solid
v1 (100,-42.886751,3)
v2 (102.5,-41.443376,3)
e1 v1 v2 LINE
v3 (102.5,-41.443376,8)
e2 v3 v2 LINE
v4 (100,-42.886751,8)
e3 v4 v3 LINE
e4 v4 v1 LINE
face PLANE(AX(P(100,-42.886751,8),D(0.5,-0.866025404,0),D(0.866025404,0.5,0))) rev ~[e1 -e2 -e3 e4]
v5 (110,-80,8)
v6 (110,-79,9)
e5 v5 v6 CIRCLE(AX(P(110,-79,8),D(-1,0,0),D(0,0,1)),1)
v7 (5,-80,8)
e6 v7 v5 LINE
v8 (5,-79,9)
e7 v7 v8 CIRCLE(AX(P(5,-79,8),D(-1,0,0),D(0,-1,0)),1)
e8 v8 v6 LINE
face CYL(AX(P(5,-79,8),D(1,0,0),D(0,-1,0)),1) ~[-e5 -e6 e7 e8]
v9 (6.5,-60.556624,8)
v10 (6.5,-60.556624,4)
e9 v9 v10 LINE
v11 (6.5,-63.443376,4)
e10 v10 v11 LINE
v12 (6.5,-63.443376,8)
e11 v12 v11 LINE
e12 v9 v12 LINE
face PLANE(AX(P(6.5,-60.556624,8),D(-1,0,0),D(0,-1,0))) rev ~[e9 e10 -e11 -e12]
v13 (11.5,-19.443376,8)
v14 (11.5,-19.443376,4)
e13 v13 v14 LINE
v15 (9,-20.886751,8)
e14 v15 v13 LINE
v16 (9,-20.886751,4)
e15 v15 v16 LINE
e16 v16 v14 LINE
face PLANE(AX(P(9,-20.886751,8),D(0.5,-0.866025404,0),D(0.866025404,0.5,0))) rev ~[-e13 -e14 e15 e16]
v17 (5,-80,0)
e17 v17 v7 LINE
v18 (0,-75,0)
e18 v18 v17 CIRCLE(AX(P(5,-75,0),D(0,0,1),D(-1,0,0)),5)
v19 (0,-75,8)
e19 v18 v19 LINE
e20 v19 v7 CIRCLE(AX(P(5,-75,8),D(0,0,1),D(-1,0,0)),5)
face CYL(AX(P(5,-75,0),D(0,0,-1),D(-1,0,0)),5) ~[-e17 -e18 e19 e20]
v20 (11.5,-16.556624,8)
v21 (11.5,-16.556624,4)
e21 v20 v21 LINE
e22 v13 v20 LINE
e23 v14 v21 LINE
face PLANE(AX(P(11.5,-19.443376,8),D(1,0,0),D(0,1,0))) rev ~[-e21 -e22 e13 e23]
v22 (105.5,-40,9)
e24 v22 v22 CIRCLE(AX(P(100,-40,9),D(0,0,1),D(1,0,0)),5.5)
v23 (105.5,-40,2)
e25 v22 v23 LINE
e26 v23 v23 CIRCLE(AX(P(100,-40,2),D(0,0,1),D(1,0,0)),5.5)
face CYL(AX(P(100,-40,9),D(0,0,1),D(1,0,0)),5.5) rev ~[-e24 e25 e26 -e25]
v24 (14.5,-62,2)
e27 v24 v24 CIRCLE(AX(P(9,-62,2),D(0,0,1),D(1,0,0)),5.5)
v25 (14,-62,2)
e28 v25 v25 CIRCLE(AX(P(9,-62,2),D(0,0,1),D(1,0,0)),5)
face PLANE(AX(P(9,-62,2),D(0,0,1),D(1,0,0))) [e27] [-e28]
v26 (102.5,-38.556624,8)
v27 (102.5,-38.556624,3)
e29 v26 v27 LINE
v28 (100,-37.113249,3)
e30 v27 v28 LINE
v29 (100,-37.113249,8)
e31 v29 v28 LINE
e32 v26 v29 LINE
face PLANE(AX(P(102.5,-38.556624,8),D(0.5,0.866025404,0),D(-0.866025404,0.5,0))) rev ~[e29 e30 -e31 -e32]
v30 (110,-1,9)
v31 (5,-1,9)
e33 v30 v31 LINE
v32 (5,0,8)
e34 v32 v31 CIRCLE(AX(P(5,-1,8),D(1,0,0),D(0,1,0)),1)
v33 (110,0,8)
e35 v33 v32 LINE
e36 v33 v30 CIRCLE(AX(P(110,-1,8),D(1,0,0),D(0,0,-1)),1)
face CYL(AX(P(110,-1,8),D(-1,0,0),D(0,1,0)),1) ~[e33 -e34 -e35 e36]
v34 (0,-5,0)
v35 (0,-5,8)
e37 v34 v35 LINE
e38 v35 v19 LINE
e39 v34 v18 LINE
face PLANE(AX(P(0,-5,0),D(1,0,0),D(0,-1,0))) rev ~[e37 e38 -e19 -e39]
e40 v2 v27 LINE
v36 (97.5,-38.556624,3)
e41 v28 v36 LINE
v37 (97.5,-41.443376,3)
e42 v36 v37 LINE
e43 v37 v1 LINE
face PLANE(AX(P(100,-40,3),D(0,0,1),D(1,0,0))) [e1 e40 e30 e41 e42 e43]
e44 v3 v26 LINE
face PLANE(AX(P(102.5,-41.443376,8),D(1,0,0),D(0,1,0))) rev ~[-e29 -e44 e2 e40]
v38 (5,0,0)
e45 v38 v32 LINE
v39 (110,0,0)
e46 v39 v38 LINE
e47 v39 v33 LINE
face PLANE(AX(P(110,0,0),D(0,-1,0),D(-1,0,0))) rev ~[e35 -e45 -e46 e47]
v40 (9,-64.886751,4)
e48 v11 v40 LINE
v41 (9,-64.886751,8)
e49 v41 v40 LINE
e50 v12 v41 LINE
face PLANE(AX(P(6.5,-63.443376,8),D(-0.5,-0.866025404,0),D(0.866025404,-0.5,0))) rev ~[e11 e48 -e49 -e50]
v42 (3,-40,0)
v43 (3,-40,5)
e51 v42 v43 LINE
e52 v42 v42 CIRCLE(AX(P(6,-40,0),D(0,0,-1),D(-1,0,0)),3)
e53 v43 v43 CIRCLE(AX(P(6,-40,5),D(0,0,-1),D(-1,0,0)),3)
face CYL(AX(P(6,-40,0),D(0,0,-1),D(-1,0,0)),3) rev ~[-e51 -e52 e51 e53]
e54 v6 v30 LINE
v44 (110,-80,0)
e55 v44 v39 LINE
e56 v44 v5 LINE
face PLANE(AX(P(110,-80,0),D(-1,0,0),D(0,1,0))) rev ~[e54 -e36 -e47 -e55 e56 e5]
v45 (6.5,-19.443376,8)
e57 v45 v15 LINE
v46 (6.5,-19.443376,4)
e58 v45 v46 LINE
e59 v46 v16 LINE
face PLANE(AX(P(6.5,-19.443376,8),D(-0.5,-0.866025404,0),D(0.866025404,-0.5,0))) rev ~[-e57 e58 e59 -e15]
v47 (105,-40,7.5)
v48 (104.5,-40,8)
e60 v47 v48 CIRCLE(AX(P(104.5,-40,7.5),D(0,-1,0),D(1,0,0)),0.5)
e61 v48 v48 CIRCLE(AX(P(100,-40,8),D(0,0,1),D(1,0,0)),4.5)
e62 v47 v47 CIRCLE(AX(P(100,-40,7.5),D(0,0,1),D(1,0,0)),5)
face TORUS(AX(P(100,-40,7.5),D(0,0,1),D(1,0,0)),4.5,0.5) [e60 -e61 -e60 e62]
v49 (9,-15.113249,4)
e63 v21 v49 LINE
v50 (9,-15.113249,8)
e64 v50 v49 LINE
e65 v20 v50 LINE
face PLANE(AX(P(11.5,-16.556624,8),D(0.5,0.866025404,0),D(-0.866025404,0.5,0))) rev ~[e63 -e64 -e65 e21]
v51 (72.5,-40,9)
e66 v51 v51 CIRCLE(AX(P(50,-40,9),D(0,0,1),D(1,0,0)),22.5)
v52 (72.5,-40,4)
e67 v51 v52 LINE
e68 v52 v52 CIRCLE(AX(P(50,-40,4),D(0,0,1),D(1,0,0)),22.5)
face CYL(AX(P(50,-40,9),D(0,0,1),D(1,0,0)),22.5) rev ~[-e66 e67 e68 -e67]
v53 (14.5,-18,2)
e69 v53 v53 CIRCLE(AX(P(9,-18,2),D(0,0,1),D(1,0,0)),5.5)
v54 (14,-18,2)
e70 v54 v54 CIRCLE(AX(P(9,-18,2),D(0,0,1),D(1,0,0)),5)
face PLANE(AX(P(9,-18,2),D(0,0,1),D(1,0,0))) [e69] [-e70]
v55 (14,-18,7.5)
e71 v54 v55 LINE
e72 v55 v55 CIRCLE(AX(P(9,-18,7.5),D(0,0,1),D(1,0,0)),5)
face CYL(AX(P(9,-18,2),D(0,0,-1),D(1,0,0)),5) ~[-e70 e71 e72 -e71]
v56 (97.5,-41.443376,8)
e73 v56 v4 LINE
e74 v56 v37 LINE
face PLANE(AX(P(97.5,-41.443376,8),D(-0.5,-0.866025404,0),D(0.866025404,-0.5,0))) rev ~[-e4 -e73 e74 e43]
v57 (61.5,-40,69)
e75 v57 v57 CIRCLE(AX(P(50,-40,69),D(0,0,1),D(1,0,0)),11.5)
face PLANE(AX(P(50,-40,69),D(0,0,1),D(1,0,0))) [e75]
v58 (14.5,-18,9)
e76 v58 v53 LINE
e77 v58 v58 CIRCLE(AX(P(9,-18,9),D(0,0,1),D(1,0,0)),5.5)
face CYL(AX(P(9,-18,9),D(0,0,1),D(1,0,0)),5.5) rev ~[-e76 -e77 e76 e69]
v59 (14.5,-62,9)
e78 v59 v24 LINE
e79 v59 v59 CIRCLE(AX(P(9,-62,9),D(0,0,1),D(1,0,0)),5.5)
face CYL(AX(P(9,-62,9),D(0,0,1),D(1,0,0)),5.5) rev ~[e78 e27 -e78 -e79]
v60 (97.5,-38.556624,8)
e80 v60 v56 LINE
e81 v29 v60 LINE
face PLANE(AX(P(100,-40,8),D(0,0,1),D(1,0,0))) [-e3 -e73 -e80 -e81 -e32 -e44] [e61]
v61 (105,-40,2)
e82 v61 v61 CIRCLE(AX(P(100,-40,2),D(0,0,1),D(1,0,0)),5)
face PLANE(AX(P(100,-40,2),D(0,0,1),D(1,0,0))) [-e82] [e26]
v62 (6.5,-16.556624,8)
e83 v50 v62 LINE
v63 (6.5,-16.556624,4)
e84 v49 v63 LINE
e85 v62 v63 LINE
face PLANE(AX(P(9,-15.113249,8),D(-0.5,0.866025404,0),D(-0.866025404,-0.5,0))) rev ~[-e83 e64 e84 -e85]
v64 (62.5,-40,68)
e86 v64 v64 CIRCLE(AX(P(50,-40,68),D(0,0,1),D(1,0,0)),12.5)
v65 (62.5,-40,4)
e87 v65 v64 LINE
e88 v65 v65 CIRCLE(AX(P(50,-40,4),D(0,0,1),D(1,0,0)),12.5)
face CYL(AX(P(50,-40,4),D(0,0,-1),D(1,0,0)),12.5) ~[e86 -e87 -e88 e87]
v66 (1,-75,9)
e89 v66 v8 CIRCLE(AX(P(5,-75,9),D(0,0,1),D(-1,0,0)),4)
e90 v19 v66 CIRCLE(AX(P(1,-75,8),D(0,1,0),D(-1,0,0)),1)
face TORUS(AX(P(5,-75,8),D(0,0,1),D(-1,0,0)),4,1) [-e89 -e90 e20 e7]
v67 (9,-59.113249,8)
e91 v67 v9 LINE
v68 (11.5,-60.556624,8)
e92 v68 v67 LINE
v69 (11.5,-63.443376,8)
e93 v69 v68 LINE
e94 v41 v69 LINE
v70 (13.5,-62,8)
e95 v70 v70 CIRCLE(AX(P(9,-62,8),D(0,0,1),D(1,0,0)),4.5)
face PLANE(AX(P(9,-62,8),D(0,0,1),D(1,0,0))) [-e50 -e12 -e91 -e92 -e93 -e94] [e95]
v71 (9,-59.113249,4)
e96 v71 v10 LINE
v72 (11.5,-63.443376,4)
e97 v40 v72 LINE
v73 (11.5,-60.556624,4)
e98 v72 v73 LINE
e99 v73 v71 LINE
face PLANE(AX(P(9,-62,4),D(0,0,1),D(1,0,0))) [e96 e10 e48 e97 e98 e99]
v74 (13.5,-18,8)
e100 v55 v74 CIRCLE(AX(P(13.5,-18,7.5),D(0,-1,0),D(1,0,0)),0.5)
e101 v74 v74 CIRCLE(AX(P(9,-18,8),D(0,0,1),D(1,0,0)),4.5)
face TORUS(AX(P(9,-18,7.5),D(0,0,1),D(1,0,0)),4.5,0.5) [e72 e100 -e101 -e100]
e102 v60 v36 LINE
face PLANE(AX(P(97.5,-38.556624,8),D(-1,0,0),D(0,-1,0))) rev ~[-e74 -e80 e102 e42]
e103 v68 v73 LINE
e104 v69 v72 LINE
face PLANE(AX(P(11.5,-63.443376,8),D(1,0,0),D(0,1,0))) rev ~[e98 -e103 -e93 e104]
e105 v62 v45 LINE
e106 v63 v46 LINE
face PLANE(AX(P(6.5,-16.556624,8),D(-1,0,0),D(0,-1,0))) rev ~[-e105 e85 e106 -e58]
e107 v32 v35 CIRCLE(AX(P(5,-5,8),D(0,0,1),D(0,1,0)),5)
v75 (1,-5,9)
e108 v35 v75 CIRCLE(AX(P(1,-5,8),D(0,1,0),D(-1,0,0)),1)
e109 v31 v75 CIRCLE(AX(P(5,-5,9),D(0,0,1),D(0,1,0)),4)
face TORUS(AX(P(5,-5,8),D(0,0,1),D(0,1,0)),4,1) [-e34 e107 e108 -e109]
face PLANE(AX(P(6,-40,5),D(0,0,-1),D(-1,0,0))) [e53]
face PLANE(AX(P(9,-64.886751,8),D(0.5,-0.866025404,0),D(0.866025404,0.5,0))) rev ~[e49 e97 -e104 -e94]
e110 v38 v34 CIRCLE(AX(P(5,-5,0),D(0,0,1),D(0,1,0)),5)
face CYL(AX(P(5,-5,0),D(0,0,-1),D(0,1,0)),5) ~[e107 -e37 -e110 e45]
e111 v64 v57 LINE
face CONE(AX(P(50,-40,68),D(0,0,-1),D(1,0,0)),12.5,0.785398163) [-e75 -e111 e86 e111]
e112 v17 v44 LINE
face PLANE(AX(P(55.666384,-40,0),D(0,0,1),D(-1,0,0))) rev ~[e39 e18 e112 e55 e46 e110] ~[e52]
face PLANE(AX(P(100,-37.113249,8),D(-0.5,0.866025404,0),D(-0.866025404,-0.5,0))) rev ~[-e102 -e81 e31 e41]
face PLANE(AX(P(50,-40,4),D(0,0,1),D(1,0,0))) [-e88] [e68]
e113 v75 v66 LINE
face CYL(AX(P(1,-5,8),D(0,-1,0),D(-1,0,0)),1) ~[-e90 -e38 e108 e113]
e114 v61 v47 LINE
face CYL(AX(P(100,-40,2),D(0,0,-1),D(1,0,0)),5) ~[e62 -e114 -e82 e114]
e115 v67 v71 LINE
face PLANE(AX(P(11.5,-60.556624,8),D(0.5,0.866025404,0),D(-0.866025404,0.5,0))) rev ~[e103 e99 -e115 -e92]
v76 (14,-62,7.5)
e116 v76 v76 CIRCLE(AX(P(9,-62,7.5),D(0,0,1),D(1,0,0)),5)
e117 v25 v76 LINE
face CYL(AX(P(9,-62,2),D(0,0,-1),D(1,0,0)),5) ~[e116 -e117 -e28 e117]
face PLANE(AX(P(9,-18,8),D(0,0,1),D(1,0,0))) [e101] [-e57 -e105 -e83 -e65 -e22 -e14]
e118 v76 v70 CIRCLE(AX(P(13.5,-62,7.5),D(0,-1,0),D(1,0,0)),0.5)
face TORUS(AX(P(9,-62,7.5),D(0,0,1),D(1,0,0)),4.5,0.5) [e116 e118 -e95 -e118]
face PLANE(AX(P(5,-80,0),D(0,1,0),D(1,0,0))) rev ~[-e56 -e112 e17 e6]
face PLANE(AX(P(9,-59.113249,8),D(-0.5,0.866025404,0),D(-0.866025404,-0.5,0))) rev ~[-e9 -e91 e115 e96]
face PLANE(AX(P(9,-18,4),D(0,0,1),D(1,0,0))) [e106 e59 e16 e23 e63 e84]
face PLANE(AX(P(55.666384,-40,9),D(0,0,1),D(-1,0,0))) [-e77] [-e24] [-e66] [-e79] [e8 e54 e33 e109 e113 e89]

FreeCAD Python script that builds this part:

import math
import FreeCAD as App
import Part
import Sketcher

V = App.Vector
Q = App.Units.Quantity


def edges_at(feature, points):
    """Names of the edges that pass closest to the given points."""
    edges = feature.Shape.Edges
    near = lambda p: min(range(len(edges)), key=lambda i: edges[i].distToShape(Part.Vertex(*p))[0])
    return sorted({f"Edge{near(p) + 1}" for p in points})


def add_polygon(sketch, points):
    """Adds a closed chain of lines whose ends are joined by coincident constraints."""
    first, n = sketch.GeometryCount, len(points)
    for a, b in zip(points, points[1:] + points[:1]):
        sketch.addGeometry(Part.LineSegment(App.Vector(*a, 0), App.Vector(*b, 0)), False)
    for i in range(n):
        sketch.addConstraint(Sketcher.Constraint("Coincident", first + i, 2, first + (i + 1) % n, 1))

doc = App.newDocument("Part")
body = doc.addObject("PartDesign::Body", "Body")

sketch1 = body.newObject("Sketcher::SketchObject", "Sketch")
sketch1.AttachmentSupport = (doc.getObject("XY_Plane"), [""])
sketch1.MapMode = "FlatFace"
sketch1.addGeometry([
    Part.LineSegment(V(0, -5, 0), V(0, -75, 0)),
    Part.ArcOfCircle(Part.Circle(V(5, -75, 0), V(0, 0, 1), 5), math.radians(180), math.radians(270)),
    Part.LineSegment(V(5, -80, 0), V(110, -80, 0)),
    Part.LineSegment(V(110, -80, 0), V(110, 0, 0)),
    Part.LineSegment(V(110, 0, 0), V(5, 0, 0)),
    Part.ArcOfCircle(Part.Circle(V(5, -5, 0), V(0, 0, 1), 5), math.radians(90), math.radians(180)),
], False)
sketch1.addConstraint([
    Sketcher.Constraint("Tangent", 0, 2, 1, 1),
    Sketcher.Constraint("Tangent", 1, 2, 2, 1),
    Sketcher.Constraint("Coincident", 2, 2, 3, 1),
    Sketcher.Constraint("Coincident", 3, 2, 4, 1),
    Sketcher.Constraint("Tangent", 4, 2, 5, 1),
    Sketcher.Constraint("Tangent", 5, 2, 0, 1),
    Sketcher.Constraint("Vertical", 0),
    Sketcher.Constraint("Horizontal", 2),
    Sketcher.Constraint("Vertical", 3),
    Sketcher.Constraint("Horizontal", 4),
    Sketcher.Constraint("Equal", 1, 5),
    Sketcher.Constraint("PointOnObject", 0, 2, -2),
    Sketcher.Constraint("PointOnObject", 3, 2, -1),
    Sketcher.Constraint("Radius", 1, 5.0),
    Sketcher.Constraint("DistanceX", 2, 1, 2, 2, 105.0),
    Sketcher.Constraint("DistanceY", 0, 2, 0, 1, 70.0),
])
pad1 = body.newObject("PartDesign::Pad", "Pad")
pad1.Profile = sketch1
pad1.Length = 9
doc.recompute()

fillet = body.newObject("PartDesign::Fillet", "Fillet")
fillet.Base = (pad1, edges_at(pad1, [
    (1.464, -78.536, 9),
    (57.5, -80, 9),
    (57.5, 0, 9),
    (1.464, -1.464, 9),
    (0, -40, 9),
]))
fillet.Radius = 1

sketch2 = body.newObject("Sketcher::SketchObject", "Sketch001")
sketch2.AttachmentSupport = (doc.getObject("XY_Plane"), [""])
sketch2.MapMode = "FlatFace"
sketch2.AttachmentOffset = App.Placement(V(0, 0, 9), App.Rotation())
sketch2.addGeometry(Part.Circle(V(9, -18, 0), V(0, 0, 1), 6), False)
sketch2.addConstraint([
    Sketcher.Constraint("Diameter", 0, 11.0),
    Sketcher.Constraint("DistanceX", -1, 1, 0, 3, 9.0),
    Sketcher.Constraint("DistanceY", 0, 3, -1, 1, 18.0),
])
pocket1 = body.newObject("PartDesign::Pocket", "Pocket")
pocket1.Profile = sketch2
pocket1.Length = 7

sketch3 = body.newObject("Sketcher::SketchObject", "Sketch002")
sketch3.AttachmentSupport = (doc.getObject("XY_Plane"), [""])
sketch3.MapMode = "FlatFace"
sketch3.AttachmentOffset = App.Placement(V(0, 0, 2), App.Rotation())
sketch3.addGeometry(Part.Circle(V(9, -18, 0), V(0, 0, 1), 5), False)
sketch3.addConstraint([
    Sketcher.Constraint("Diameter", 0, 10.0),
    Sketcher.Constraint("DistanceX", -1, 1, 0, 3, 9.0),
    Sketcher.Constraint("DistanceY", 0, 3, -1, 1, 18.0),
])
pad2 = body.newObject("PartDesign::Pad", "Pad001")
pad2.Profile = sketch3
pad2.Length = 6
doc.recompute()

fillet2 = body.newObject("PartDesign::Fillet", "Fillet001")
fillet2.Base = (pad2, edges_at(pad2, [(4, -18, 8)]))
fillet2.Radius = 0.5

sketch4 = body.newObject("Sketcher::SketchObject", "Sketch003")
sketch4.AttachmentSupport = (doc.getObject("XY_Plane"), [""])
sketch4.MapMode = "FlatFace"
sketch4.AttachmentOffset = App.Placement(V(0, 0, 8), App.Rotation())
add_polygon(sketch4, [(9, -15.1), (6.5, -16.6), (6.5, -19.4), (9, -20.9), (11.5, -19.4), (11.5, -16.6)])
sketch4.addConstraint([
    Sketcher.Constraint("Vertical", 1),
    Sketcher.Constraint("Vertical", 4),
    Sketcher.Constraint("Parallel", 0, 3),
    Sketcher.Constraint("Parallel", 2, 5),
    Sketcher.Constraint("Horizontal", 1, 2, 3, 2),
    Sketcher.Constraint("Horizontal", 0, 2, 4, 2),
    Sketcher.Constraint("Vertical", 2, 2, 5, 2),
    Sketcher.Constraint("Angle", 0, Q("-150 deg")),
    Sketcher.Constraint("DistanceX", -1, 1, 2, 2, 9.0),
    Sketcher.Constraint("DistanceX", 1, 2, 3, 2, 5.0),
    Sketcher.Constraint("DistanceY", 1, 2, 1, 1, 2.886751),
    Sketcher.Constraint("DistanceY", 2, 2, -1, 1, 20.886751),
])
pocket2 = body.newObject("PartDesign::Pocket", "Pocket001")
pocket2.Profile = sketch4
pocket2.Length = 4
doc.recompute()

linearpattern = body.newObject("PartDesign::LinearPattern", "LinearPattern")
linearpattern.Originals = [pocket1, pad2, pocket2]
linearpattern.Direction = (doc.getObject("Y_Axis"), [""])
linearpattern.Mode = "offset"
linearpattern.Offset = 44
linearpattern.Occurrences = 2
linearpattern.Reversed = True
body.Tip = linearpattern
doc.recompute()

fillet3 = body.newObject("PartDesign::Fillet", "Fillet002")
fillet3.Base = (linearpattern, edges_at(linearpattern, [(4, -62, 8)]))
fillet3.Radius = 0.5

sketch5 = body.newObject("Sketcher::SketchObject", "Sketch004")
sketch5.AttachmentSupport = (doc.getObject("XY_Plane"), [""])
sketch5.MapMode = "FlatFace"
sketch5.AttachmentOffset = App.Placement(V(0, 0, 9), App.Rotation())
sketch5.addGeometry(Part.Circle(V(100, -40, 0), V(0, 0, 1), 6), False)
sketch5.addConstraint([
    Sketcher.Constraint("Diameter", 0, 11.0),
    Sketcher.Constraint("DistanceX", -1, 1, 0, 3, 100.0),
    Sketcher.Constraint("DistanceY", 0, 3, -1, 1, 40.0),
])
pocket3 = body.newObject("PartDesign::Pocket", "Pocket002")
pocket3.Profile = sketch5
pocket3.Length = 7

sketch6 = body.newObject("Sketcher::SketchObject", "Sketch005")
sketch6.AttachmentSupport = (doc.getObject("XY_Plane"), [""])
sketch6.MapMode = "FlatFace"
sketch6.AttachmentOffset = App.Placement(V(0, 0, 2), App.Rotation())
sketch6.addGeometry(Part.Circle(V(100, -40, 0), V(0, 0, 1), 5), False)
sketch6.addConstraint([
    Sketcher.Constraint("Diameter", 0, 10.0),
    Sketcher.Constraint("DistanceX", -1, 1, 0, 3, 100.0),
    Sketcher.Constraint("DistanceY", 0, 3, -1, 1, 40.0),
])
pad3 = body.newObject("PartDesign::Pad", "Pad002")
pad3.Profile = sketch6
pad3.Length = 6
doc.recompute()

fillet4 = body.newObject("PartDesign::Fillet", "Fillet003")
fillet4.Base = (pad3, edges_at(pad3, [(95, -40, 8)]))
fillet4.Radius = 0.5

sketch7 = body.newObject("Sketcher::SketchObject", "Sketch006")
sketch7.AttachmentSupport = (doc.getObject("XY_Plane"), [""])
sketch7.MapMode = "FlatFace"
sketch7.AttachmentOffset = App.Placement(V(0, 0, 8), App.Rotation())
add_polygon(sketch7, [(100, -37.1), (97.5, -38.6), (97.5, -41.4), (100, -42.9), (102.5, -41.4), (102.5, -38.6)])
sketch7.addConstraint([
    Sketcher.Constraint("Vertical", 1),
    Sketcher.Constraint("Vertical", 4),
    Sketcher.Constraint("Parallel", 0, 3),
    Sketcher.Constraint("Parallel", 2, 5),
    Sketcher.Constraint("Horizontal", 1, 2, 3, 2),
    Sketcher.Constraint("Horizontal", 0, 2, 4, 2),
    Sketcher.Constraint("Vertical", 2, 2, 5, 2),
    Sketcher.Constraint("Angle", 0, Q("-150 deg")),
    Sketcher.Constraint("DistanceX", -1, 1, 2, 2, 100.0),
    Sketcher.Constraint("DistanceX", 1, 2, 3, 2, 5.0),
    Sketcher.Constraint("DistanceY", 1, 2, 1, 1, 2.886751),
    Sketcher.Constraint("DistanceY", 2, 2, -1, 1, 42.886751),
])
pocket4 = body.newObject("PartDesign::Pocket", "Pocket003")
pocket4.Profile = sketch7
pocket4.Length = 5

sketch8 = body.newObject("Sketcher::SketchObject", "Sketch007")
sketch8.AttachmentSupport = (doc.getObject("XY_Plane"), [""])
sketch8.MapMode = "FlatFace"
sketch8.addGeometry(Part.Circle(V(6, -40, 0), V(0, 0, 1), 3), False)
sketch8.addConstraint([
    Sketcher.Constraint("Diameter", 0, 6.0),
    Sketcher.Constraint("DistanceX", -1, 1, 0, 3, 6.0),
    Sketcher.Constraint("DistanceY", 0, 3, -1, 1, 40.0),
])
pocket5 = body.newObject("PartDesign::Pocket", "Pocket004")
pocket5.Profile = sketch8
pocket5.Length = 5
pocket5.Reversed = True

sketch9 = body.newObject("Sketcher::SketchObject", "Sketch008")
sketch9.AttachmentSupport = (doc.getObject("XY_Plane"), [""])
sketch9.MapMode = "FlatFace"
sketch9.AttachmentOffset = App.Placement(V(0, 0, 9), App.Rotation())
sketch9.addGeometry(Part.Circle(V(50, -40, 0), V(0, 0, 1), 22), False)
sketch9.addConstraint([
    Sketcher.Constraint("Diameter", 0, 45.0),
    Sketcher.Constraint("DistanceX", -1, 1, 0, 3, 50.0),
    Sketcher.Constraint("DistanceY", 0, 3, -1, 1, 40.0),
])
pocket6 = body.newObject("PartDesign::Pocket", "Pocket005")
pocket6.Profile = sketch9
pocket6.Length = 5

sketch10 = body.newObject("Sketcher::SketchObject", "Sketch009")
sketch10.AttachmentSupport = (doc.getObject("XY_Plane"), [""])
sketch10.MapMode = "FlatFace"
sketch10.AttachmentOffset = App.Placement(V(0, 0, 4), App.Rotation())
sketch10.addGeometry(Part.Circle(V(50, -40, 0), V(0, 0, 1), 12), False)
sketch10.addConstraint([
    Sketcher.Constraint("Diameter", 0, 25.0),
    Sketcher.Constraint("DistanceX", -1, 1, 0, 3, 50.0),
    Sketcher.Constraint("DistanceY", 0, 3, -1, 1, 40.0),
])
pad4 = body.newObject("PartDesign::Pad", "Pad003")
pad4.Profile = sketch10
pad4.Length = 65
doc.recompute()

chamfer = body.newObject("PartDesign::Chamfer", "Chamfer")
chamfer.Base = (pad4, edges_at(pad4, [(37.5, -40, 69)]))
chamfer.Size = 1

doc.recompute()
